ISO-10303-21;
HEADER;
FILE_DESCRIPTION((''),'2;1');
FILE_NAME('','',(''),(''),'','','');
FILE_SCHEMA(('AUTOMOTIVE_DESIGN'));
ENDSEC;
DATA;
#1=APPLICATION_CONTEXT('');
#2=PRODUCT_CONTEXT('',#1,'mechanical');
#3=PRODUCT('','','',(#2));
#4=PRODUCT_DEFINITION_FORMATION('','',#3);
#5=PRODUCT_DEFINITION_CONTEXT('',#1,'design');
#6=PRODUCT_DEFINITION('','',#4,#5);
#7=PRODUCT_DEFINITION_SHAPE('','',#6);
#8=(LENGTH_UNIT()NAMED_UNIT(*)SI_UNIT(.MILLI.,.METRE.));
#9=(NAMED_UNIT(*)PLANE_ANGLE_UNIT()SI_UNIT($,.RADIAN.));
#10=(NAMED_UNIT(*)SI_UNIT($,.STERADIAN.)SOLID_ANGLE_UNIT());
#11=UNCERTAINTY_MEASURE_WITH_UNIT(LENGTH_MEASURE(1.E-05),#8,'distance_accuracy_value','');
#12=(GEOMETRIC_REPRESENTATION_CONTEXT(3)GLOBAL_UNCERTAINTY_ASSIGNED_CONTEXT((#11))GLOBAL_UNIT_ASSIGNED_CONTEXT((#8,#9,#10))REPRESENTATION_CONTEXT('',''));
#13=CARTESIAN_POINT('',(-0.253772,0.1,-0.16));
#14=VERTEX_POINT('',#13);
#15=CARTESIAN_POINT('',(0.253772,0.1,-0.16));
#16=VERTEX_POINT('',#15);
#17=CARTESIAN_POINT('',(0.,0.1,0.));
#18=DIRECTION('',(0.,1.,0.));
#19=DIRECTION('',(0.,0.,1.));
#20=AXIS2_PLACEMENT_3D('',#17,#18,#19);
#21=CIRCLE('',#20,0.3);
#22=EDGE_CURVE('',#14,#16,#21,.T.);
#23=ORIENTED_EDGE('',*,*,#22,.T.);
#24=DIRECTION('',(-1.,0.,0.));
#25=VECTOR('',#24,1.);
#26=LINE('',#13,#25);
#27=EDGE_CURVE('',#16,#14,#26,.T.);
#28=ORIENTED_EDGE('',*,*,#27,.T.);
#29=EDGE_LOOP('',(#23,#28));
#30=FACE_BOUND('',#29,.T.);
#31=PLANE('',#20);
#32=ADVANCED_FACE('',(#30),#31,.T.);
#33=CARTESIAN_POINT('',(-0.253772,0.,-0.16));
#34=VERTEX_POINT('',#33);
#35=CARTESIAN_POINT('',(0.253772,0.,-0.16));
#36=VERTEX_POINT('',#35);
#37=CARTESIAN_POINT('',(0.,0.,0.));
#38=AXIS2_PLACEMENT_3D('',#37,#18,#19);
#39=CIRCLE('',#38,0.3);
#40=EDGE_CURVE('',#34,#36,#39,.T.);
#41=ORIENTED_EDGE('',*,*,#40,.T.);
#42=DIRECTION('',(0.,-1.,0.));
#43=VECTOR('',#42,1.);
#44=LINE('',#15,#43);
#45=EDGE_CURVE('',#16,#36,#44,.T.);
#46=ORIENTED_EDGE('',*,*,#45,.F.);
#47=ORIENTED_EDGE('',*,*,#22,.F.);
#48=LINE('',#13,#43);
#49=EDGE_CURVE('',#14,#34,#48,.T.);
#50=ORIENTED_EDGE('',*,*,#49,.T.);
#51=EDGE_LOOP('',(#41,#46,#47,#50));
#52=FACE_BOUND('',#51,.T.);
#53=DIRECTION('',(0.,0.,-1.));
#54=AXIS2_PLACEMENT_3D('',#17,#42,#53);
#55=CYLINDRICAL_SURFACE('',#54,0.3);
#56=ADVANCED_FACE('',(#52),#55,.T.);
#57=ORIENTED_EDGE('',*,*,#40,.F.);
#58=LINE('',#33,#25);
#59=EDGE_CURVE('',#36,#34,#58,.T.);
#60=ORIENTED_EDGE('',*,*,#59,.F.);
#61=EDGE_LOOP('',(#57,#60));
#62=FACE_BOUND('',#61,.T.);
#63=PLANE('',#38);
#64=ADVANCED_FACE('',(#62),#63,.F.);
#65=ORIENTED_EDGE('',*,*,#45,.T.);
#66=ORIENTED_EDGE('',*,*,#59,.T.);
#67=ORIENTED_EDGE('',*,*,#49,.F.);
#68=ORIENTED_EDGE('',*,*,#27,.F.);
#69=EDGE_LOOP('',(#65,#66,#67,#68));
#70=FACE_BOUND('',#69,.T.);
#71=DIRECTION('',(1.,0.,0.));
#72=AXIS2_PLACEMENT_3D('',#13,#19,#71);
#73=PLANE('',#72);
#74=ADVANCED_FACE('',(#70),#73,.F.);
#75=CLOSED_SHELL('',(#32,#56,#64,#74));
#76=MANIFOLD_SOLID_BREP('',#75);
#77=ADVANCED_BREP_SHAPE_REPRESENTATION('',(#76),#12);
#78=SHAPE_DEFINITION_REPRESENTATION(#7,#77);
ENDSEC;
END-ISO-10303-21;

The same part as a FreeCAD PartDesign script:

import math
import FreeCAD as App
import Part
import Sketcher
from FreeCAD import Vector
Q = App.Units.Quantity

doc = App.newDocument("Part")
params = doc.addObject("Spreadsheet::Sheet", "Params")
for row, (alias, value) in enumerate([
    ("sketch1_radius", "0.3 mm"),
    ("pad1_length", "0.1 mm"),
], start=1):
    params.set(f"A{row}", alias)
    params.set(f"B{row}", "=" + value)
    params.setAlias(f"B{row}", alias)

body = doc.addObject("PartDesign::Body", "Body")

sketch1 = body.newObject("Sketcher::SketchObject", "Sketch")
sketch1.AttachmentSupport = (doc.getObject("XZ_Plane"), [""])
sketch1.MapMode = "FlatFace"
sketch1.addGeometry([
    Part.LineSegment(Vector(0.25, -0.16, 0), Vector(-0.25, -0.16, 0)),
    Part.ArcOfCircle(Part.Circle(Vector(0, 0, 0), Vector(0, 0, 1), 0.3), math.radians(-32), math.radians(212)),
], False)
sketch1.addConstraint([
    Sketcher.Constraint("Coincident", 0, 1, 1, 1),
    Sketcher.Constraint("Coincident", 1, 2, 0, 2),
    Sketcher.Constraint("Horizontal", 0),
    Sketcher.Constraint("Coincident", 1, 3, -1, 1),
    Sketcher.Constraint("Radius", 1, Q("0.3 mm")),
    Sketcher.Constraint("DistanceY", 0, 1, -1, 1, Q("0.16 mm")),
])
sketch1.setExpression("Constraints[4]", "Params.sketch1_radius")
pad1 = body.newObject("PartDesign::Pad", "Pad")
pad1.Profile = sketch1
pad1.setExpression("Length", "Params.pad1_length")
pad1.Reversed = True

doc.recompute()
